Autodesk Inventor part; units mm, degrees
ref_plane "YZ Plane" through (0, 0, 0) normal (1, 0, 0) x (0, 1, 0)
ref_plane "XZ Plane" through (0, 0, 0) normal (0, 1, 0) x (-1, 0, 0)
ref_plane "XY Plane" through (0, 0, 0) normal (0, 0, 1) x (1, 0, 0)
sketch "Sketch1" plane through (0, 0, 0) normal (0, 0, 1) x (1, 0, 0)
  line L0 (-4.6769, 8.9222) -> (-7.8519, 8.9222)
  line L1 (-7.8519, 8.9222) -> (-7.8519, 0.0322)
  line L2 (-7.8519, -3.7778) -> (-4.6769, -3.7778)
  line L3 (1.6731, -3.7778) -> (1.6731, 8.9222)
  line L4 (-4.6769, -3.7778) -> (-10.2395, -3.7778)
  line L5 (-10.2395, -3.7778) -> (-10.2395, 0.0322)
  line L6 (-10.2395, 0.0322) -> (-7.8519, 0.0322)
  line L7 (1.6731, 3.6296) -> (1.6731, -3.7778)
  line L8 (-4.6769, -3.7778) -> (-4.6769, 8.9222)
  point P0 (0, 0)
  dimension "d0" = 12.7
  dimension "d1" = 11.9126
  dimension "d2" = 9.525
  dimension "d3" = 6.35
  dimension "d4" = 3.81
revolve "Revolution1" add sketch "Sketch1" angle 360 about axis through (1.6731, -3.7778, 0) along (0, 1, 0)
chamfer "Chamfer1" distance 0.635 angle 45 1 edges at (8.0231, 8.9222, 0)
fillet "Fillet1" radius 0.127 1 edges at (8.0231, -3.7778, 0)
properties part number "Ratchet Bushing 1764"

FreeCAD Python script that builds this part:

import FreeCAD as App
import Part
import Sketcher
from FreeCAD import Vector
Q = App.Units.Quantity


def edges_at(feature, points):
    """Names of the edges that pass closest to the given points."""
    edges = feature.Shape.Edges
    near = lambda p: min(range(len(edges)), key=lambda i: edges[i].distToShape(Part.Vertex(*p))[0])
    return sorted({f"Edge{near(p) + 1}" for p in points})


def add_polygon(sketch, points):
    """Adds a closed chain of lines whose ends are joined by coincident constraints."""
    first, n = sketch.GeometryCount, len(points)
    for a, b in zip(points, points[1:] + points[:1]):
        sketch.addGeometry(Part.LineSegment(App.Vector(*a, 0), App.Vector(*b, 0)), False)
    for i in range(n):
        sketch.addConstraint(Sketcher.Constraint("Coincident", first + i, 2, first + (i + 1) % n, 1))

doc = App.newDocument("Part")
params = doc.addObject("Spreadsheet::Sheet", "Params")
for row, (alias, value) in enumerate([
    ("sketch1_height", "0.5 in"),
    ("sketch1_height2", "0.15 in"),
    ("revolution_angle", "360 deg"),
    ("chamfer_size", "0.025 in"),
    ("fillet_radius", "0.005 in"),
], start=1):
    params.set(f"A{row}", alias)
    params.set(f"B{row}", "=" + value)
    params.setAlias(f"B{row}", alias)

body = doc.addObject("PartDesign::Body", "Body")

# Sketch on XY plane
sketch1 = body.newObject("Sketcher::SketchObject", "Sketch")
sketch1.AttachmentSupport = (doc.getObject("XY_Plane"), [""])
sketch1.MapMode = "FlatFace"
add_polygon(sketch1, [(-4.7, -3.8), (-4.7, 8.9), (-7.9, 8.9), (-7.9, 0), (-10.2, 0), (-10.2, -3.8)])  # lines 0-5
sketch1.addGeometry(Part.LineSegment(Vector(1.7, -3.8, 0), Vector(1.7, 8.9, 0)), True)  # axis
sketch1.addConstraint([
    Sketcher.Constraint("Vertical", 0),
    Sketcher.Constraint("Horizontal", 1),
    Sketcher.Constraint("Vertical", 2),
    Sketcher.Constraint("Horizontal", 3),
    Sketcher.Constraint("Vertical", 4),
    Sketcher.Constraint("Horizontal", 5),
    Sketcher.Constraint("Vertical", 6),
    Sketcher.Constraint("Horizontal", 5, 2, 6, 1),
    Sketcher.Constraint("Horizontal", 1, 2, 6, 2),
    Sketcher.Constraint("DistanceY", 0, 1, 0, 2, Q("0.5 in")),
    Sketcher.Constraint("DistanceY", 4, 2, 4, 1, Q("0.15 in")),
    Sketcher.Constraint("DistanceX", 5, 2, 6, 1, Q("0.25 in")),
    Sketcher.Constraint("DistanceX", 2, 2, 6, 1, Q("0.375 in")),
    Sketcher.Constraint("DistanceX", 4, 2, 6, 1, Q("0.469 in")),
    Sketcher.Constraint("DistanceX", 0, 2, -1, 1, 4.677),
    Sketcher.Constraint("DistanceY", -1, 1, 0, 2, 8.9222),
])
sketch1.setExpression("Constraints[15]", "Params.sketch1_height")
sketch1.setExpression("Constraints[16]", "Params.sketch1_height2")
revolution = body.newObject("PartDesign::Revolution", "Revolution")
revolution.Profile = sketch1
revolution.ReferenceAxis = (sketch1, ["Axis0"])
revolution.setExpression("Angle", "Params.revolution_angle")
doc.recompute()

chamfer = body.newObject("PartDesign::Chamfer", "Chamfer")
chamfer.Base = (revolution, edges_at(revolution, [(8.023, 8.922, 0)]))
chamfer.setExpression("Size", "Params.chamfer_size")
doc.recompute()

fillet = body.newObject("PartDesign::Fillet", "Fillet")
fillet.Base = (chamfer, edges_at(chamfer, [(8.023, -3.778, 0)]))
fillet.setExpression("Radius", "Params.fillet_radius")

doc.recompute()
